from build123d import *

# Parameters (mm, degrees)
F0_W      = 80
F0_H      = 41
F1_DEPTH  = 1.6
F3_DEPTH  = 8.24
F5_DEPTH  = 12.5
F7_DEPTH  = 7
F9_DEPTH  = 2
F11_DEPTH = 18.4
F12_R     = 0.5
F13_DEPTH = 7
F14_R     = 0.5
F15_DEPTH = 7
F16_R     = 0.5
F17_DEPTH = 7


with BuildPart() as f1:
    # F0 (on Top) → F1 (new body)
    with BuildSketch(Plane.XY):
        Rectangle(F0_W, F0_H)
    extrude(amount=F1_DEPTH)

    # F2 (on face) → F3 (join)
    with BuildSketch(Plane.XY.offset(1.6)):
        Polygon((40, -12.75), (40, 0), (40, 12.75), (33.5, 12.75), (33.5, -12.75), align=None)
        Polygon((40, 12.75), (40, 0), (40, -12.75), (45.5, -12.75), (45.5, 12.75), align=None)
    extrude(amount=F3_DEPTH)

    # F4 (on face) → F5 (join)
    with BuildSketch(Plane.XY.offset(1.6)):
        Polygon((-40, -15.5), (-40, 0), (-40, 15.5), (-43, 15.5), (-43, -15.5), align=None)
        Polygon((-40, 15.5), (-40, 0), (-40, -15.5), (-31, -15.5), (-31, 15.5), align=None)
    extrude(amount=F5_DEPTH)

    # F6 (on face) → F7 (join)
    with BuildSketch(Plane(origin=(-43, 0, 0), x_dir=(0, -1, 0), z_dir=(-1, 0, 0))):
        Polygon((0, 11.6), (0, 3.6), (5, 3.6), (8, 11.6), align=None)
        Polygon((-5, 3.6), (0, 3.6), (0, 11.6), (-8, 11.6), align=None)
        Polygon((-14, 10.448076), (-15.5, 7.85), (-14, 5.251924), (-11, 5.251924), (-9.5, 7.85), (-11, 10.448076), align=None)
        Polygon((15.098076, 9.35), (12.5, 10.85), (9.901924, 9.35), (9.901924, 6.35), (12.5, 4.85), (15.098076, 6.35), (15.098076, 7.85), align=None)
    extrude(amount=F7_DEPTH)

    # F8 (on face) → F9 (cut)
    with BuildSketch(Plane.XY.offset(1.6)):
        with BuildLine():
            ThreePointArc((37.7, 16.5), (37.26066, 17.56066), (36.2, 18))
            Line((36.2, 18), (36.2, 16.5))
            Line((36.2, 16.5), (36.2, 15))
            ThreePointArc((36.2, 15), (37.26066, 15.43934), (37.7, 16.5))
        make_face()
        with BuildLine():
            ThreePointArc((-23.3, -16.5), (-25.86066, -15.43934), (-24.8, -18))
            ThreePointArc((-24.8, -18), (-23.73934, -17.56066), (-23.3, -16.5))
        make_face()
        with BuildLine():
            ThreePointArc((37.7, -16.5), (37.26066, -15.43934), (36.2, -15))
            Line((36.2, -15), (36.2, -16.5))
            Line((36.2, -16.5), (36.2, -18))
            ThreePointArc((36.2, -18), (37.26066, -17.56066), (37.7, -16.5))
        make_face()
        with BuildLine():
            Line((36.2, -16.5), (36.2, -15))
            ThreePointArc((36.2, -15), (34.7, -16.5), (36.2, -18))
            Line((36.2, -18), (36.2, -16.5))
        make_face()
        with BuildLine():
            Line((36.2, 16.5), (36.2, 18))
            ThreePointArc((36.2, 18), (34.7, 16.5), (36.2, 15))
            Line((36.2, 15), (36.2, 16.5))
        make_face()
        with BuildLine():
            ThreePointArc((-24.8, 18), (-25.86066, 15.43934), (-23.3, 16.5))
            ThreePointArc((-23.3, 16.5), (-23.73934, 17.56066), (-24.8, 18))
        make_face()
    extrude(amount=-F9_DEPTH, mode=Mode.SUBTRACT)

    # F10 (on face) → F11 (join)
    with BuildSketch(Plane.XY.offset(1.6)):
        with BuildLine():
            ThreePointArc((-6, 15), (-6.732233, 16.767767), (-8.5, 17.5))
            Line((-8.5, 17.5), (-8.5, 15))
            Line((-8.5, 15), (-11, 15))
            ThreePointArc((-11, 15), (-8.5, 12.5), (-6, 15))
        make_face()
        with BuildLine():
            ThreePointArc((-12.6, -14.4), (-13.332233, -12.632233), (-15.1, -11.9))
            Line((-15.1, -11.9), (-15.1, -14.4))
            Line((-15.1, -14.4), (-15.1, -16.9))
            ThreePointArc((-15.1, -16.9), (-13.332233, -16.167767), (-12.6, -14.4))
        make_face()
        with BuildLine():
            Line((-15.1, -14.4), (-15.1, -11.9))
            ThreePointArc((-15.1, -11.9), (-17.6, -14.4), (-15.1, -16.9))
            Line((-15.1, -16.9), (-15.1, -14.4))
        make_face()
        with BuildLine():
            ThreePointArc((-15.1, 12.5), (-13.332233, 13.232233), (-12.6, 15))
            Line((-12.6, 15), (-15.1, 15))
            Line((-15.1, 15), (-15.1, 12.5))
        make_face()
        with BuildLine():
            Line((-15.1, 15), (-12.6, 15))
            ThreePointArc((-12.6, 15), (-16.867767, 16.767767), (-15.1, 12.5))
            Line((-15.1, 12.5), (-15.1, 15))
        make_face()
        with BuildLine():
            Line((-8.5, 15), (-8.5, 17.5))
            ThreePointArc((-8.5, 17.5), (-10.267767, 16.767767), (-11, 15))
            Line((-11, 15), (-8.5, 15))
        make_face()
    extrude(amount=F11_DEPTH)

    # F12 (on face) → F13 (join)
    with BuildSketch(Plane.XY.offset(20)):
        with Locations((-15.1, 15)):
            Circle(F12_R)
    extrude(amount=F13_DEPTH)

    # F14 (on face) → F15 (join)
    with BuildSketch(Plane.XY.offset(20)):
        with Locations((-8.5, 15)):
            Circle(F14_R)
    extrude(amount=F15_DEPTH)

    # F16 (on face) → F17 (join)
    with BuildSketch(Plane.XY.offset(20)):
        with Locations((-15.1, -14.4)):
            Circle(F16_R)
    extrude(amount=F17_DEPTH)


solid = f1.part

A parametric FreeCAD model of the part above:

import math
import FreeCAD as App
import Part
import Sketcher
from FreeCAD import Vector
Q = App.Units.Quantity

doc = App.newDocument("Part")
body = doc.addObject("PartDesign::Body", "Body")

sketch1 = doc.addObject("Sketcher::SketchObject", "Sketch")
body.addObject(sketch1)
sketch1.AttachmentSupport = (doc.XY_Plane, [""])
sketch1.MapMode = "FlatFace"
sketch1.addGeometry([
    Part.LineSegment(Vector(-40, 20, 0), Vector(-40, -20, 0)),
    Part.LineSegment(Vector(-40, -20, 0), Vector(40, -20, 0)),
    Part.LineSegment(Vector(40, -20, 0), Vector(40, 20, 0)),
    Part.LineSegment(Vector(40, 20, 0), Vector(-40, 20, 0)),
], False)
sketch1.addConstraint([
    Sketcher.Constraint("Coincident", 0, 2, 1, 1),
    Sketcher.Constraint("Coincident", 1, 2, 2, 1),
    Sketcher.Constraint("Coincident", 2, 2, 3, 1),
    Sketcher.Constraint("Coincident", 3, 2, 0, 1),
    Sketcher.Constraint("Vertical", 0),
    Sketcher.Constraint("Horizontal", 1),
    Sketcher.Constraint("Vertical", 2),
    Sketcher.Constraint("Horizontal", 3),
    Sketcher.Constraint("Symmetric", 0, 2, 2, 2, -1, 1),
    Sketcher.Constraint("DistanceX", 1, 1, 1, 2, 80.0),
    Sketcher.Constraint("DistanceY", 0, 2, 0, 1, 41.0),
])
pad1 = doc.addObject("PartDesign::Pad", "Pad")
body.addObject(pad1)
pad1.Profile = sketch1
pad1.Length = 1.6

sketch2 = doc.addObject("Sketcher::SketchObject", "Sketch001")
body.addObject(sketch2)
sketch2.AttachmentSupport = (doc.XY_Plane, [""])
sketch2.MapMode = "FlatFace"
sketch2.AttachmentOffset = App.Placement(Vector(0, 0, 1.6), App.Rotation())
sketch2.addGeometry([
    Part.LineSegment(Vector(34, 13, 0), Vector(34, -13, 0)),
    Part.LineSegment(Vector(34, -13, 0), Vector(46, -13, 0)),
    Part.LineSegment(Vector(46, -13, 0), Vector(46, 13, 0)),
    Part.LineSegment(Vector(46, 13, 0), Vector(34, 13, 0)),
], False)
sketch2.addConstraint([
    Sketcher.Constraint("Coincident", 0, 2, 1, 1),
    Sketcher.Constraint("Coincident", 1, 2, 2, 1),
    Sketcher.Constraint("Coincident", 2, 2, 3, 1),
    Sketcher.Constraint("Coincident", 3, 2, 0, 1),
    Sketcher.Constraint("Vertical", 0),
    Sketcher.Constraint("Horizontal", 1),
    Sketcher.Constraint("Vertical", 2),
    Sketcher.Constraint("Horizontal", 3),
    Sketcher.Constraint("DistanceX", 1, 1, 1, 2, 12.0),
    Sketcher.Constraint("DistanceY", 0, 2, 0, 1, 25.5),
    Sketcher.Constraint("DistanceX", -1, 1, 0, 2, 33.5),
    Sketcher.Constraint("DistanceY", 0, 2, -1, 1, 12.75),
])
pad2 = doc.addObject("PartDesign::Pad", "Pad001")
body.addObject(pad2)
pad2.Profile = sketch2
pad2.Length = 8.24

sketch3 = doc.addObject("Sketcher::SketchObject", "Sketch002")
body.addObject(sketch3)
sketch3.AttachmentSupport = (doc.XY_Plane, [""])
sketch3.MapMode = "FlatFace"
sketch3.AttachmentOffset = App.Placement(Vector(0, 0, 1.6), App.Rotation())
sketch3.addGeometry([
    Part.LineSegment(Vector(-43, 16, 0), Vector(-43, -16, 0)),
    Part.LineSegment(Vector(-43, -16, 0), Vector(-31, -16, 0)),
    Part.LineSegment(Vector(-31, -16, 0), Vector(-31, 16, 0)),
    Part.LineSegment(Vector(-31, 16, 0), Vector(-43, 16, 0)),
], False)
sketch3.addConstraint([
    Sketcher.Constraint("Coincident", 0, 2, 1, 1),
    Sketcher.Constraint("Coincident", 1, 2, 2, 1),
    Sketcher.Constraint("Coincident", 2, 2, 3, 1),
    Sketcher.Constraint("Coincident", 3, 2, 0, 1),
    Sketcher.Constraint("Vertical", 0),
    Sketcher.Constraint("Horizontal", 1),
    Sketcher.Constraint("Vertical", 2),
    Sketcher.Constraint("Horizontal", 3),
    Sketcher.Constraint("DistanceX", 1, 1, 1, 2, 12.0),
    Sketcher.Constraint("DistanceY", 0, 2, 0, 1, 31.0),
    Sketcher.Constraint("DistanceX", 0, 2, -1, 1, 43.0),
    Sketcher.Constraint("DistanceY", 0, 2, -1, 1, 15.5),
])
pad3 = doc.addObject("PartDesign::Pad", "Pad002")
body.addObject(pad3)
pad3.Profile = sketch3
pad3.Length = 12.5

sketch4 = doc.addObject("Sketcher::SketchObject", "Sketch003")
body.addObject(sketch4)
sketch4.AttachmentSupport = (doc.YZ_Plane, [""])
sketch4.MapMode = "FlatFace"
sketch4.AttachmentOffset = App.Placement(Vector(0, 0, -43), App.Rotation())
sketch4.addGeometry([
    Part.LineSegment(Vector(-5, 3.6, 0), Vector(-8, 11.6, 0)),
    Part.LineSegment(Vector(-8, 11.6, 0), Vector(8, 11.6, 0)),
    Part.LineSegment(Vector(8, 11.6, 0), Vector(5, 3.6, 0)),
    Part.LineSegment(Vector(5, 3.6, 0), Vector(-5, 3.6, 0)),
    Part.LineSegment(Vector(14, 10.4, 0), Vector(15.5, 7.8, 0)),
    Part.LineSegment(Vector(15.5, 7.8, 0), Vector(14, 5.3, 0)),
    Part.LineSegment(Vector(14, 5.3, 0), Vector(11, 5.3, 0)),
    Part.LineSegment(Vector(11, 5.3, 0), Vector(9.5, 7.8, 0)),
    Part.LineSegment(Vector(9.5, 7.8, 0), Vector(11, 10.4, 0)),
    Part.LineSegment(Vector(11, 10.4, 0), Vector(14, 10.4, 0)),
    Part.LineSegment(Vector(-15.1, 9.3, 0), Vector(-12.5, 10.8, 0)),
    Part.LineSegment(Vector(-12.5, 10.8, 0), Vector(-9.9, 9.3, 0)),
    Part.LineSegment(Vector(-9.9, 9.3, 0), Vector(-9.9, 6.3, 0)),
    Part.LineSegment(Vector(-9.9, 6.3, 0), Vector(-12.5, 4.8, 0)),
    Part.LineSegment(Vector(-12.5, 4.8, 0), Vector(-15.1, 6.3, 0)),
    Part.LineSegment(Vector(-15.1, 6.3, 0), Vector(-15.1, 9.3, 0)),
], False)
sketch4.addConstraint([
    Sketcher.Constraint("Coincident", 0, 2, 1, 1),
    Sketcher.Constraint("Coincident", 1, 2, 2, 1),
    Sketcher.Constraint("Coincident", 2, 2, 3, 1),
    Sketcher.Constraint("Coincident", 3, 2, 0, 1),
    Sketcher.Constraint("Coincident", 4, 2, 5, 1),
    Sketcher.Constraint("Coincident", 5, 2, 6, 1),
    Sketcher.Constraint("Coincident", 6, 2, 7, 1),
    Sketcher.Constraint("Coincident", 7, 2, 8, 1),
    Sketcher.Constraint("Coincident", 8, 2, 9, 1),
    Sketcher.Constraint("Coincident", 9, 2, 4, 1),
    Sketcher.Constraint("Coincident", 10, 2, 11, 1),
    Sketcher.Constraint("Coincident", 11, 2, 12, 1),
    Sketcher.Constraint("Coincident", 12, 2, 13, 1),
    Sketcher.Constraint("Coincident", 13, 2, 14, 1),
    Sketcher.Constraint("Coincident", 14, 2, 15, 1),
    Sketcher.Constraint("Coincident", 15, 2, 10, 1),
    Sketcher.Constraint("Horizontal", 1),
    Sketcher.Constraint("Horizontal", 3),
    Sketcher.Constraint("Horizontal", 6),
    Sketcher.Constraint("Horizontal", 9),
    Sketcher.Constraint("Vertical", 12),
    Sketcher.Constraint("Vertical", 15),
    Sketcher.Constraint("Parallel", 4, 7),
    Sketcher.Constraint("Parallel", 5, 8),
    Sketcher.Constraint("Perpendicular", 7, 10),
    Sketcher.Constraint("Perpendicular", 8, 11),
    Sketcher.Constraint("Parallel", 10, 13),
    Sketcher.Constraint("Parallel", 11, 14),
    Sketcher.Constraint("Horizontal", 4, 2, 7, 2),
    Sketcher.Constraint("Horizontal", 12, 2, 14, 2),
    Sketcher.Constraint("Horizontal", 11, 2, 15, 2),
    Sketcher.Constraint("Vertical", 6, 2, 8, 2),
    Sketcher.Constraint("Vertical", 5, 2, 9, 2),
    Sketcher.Constraint("Equal", 9, 12),
    Sketcher.Constraint("Equal", 0, 2),
    Sketcher.Constraint("Equal", 8, 10),
    Sketcher.Constraint("DistanceX", 1, 1, 1, 2, 16.0),
    Sketcher.Constraint("DistanceX", 3, 2, 3, 1, 10.0),
    Sketcher.Constraint("DistanceX", 6, 2, 6, 1, 3.0),
    Sketcher.Constraint("Angle", 4, Q("-59.999998 deg")),
    Sketcher.Constraint("Distance", 4, 3.0),
    Sketcher.Constraint("DistanceX", 0, 2, -1, 1, 8.0),
    Sketcher.Constraint("DistanceX", -1, 1, 5, 2, 14.0),
    Sketcher.Constraint("DistanceY", 2, 2, 1, 2, 8.0),
    Sketcher.Constraint("DistanceX", 10, 2, 7, 2, 22.0),
    Sketcher.Constraint("DistanceY", 7, 2, 10, 2, 3.0),
    Sketcher.Constraint("DistanceY", -1, 1, 0, 2, 11.6),
    Sketcher.Constraint("DistanceY", -1, 1, 4, 2, 7.85),
])
pad4 = doc.addObject("PartDesign::Pad", "Pad003")
body.addObject(pad4)
pad4.Profile = sketch4
pad4.Length = 7
pad4.Reversed = True

sketch5 = doc.addObject("Sketcher::SketchObject", "Sketch004")
body.addObject(sketch5)
sketch5.AttachmentSupport = (doc.XY_Plane, [""])
sketch5.MapMode = "FlatFace"
sketch5.AttachmentOffset = App.Placement(Vector(0, 0, 1.6), App.Rotation())
sketch5.addGeometry([
    Part.ArcOfCircle(Part.Circle(Vector(36.2, 16.5, 0), Vector(0, 0, 1), 1.5), math.radians(0), math.radians(90)),
    Part.ArcOfCircle(Part.Circle(Vector(36.2, 16.5, 0), Vector(0, 0, 1), 1.5), math.radians(90), math.radians(270)),
    Part.ArcOfCircle(Part.Circle(Vector(36.2, 16.5, 0), Vector(0, 0, 1), 1.5), math.radians(-90), math.radians(0)),
    Part.ArcOfCircle(Part.Circle(Vector(-24.8, -16.5, 0), Vector(0, 0, 1), 1.5), math.radians(0), math.radians(270)),
    Part.ArcOfCircle(Part.Circle(Vector(-24.8, -16.5, 0), Vector(0, 0, 1), 1.5), math.radians(-90), math.radians(0)),
    Part.ArcOfCircle(Part.Circle(Vector(36.2, -16.5, 0), Vector(0, 0, 1), 1.5), math.radians(0), math.radians(90)),
    Part.ArcOfCircle(Part.Circle(Vector(36.2, -16.5, 0), Vector(0, 0, 1), 1.5), math.radians(90), math.radians(270)),
    Part.ArcOfCircle(Part.Circle(Vector(36.2, -16.5, 0), Vector(0, 0, 1), 1.5), math.radians(-90), math.radians(0)),
    Part.ArcOfCircle(Part.Circle(Vector(-24.8, 16.5, 0), Vector(0, 0, 1), 1.5), math.radians(90), math.radians(360)),
    Part.ArcOfCircle(Part.Circle(Vector(-24.8, 16.5, 0), Vector(0, 0, 1), 1.5), math.radians(0), math.radians(90)),
], False)
sketch5.addConstraint([
    Sketcher.Constraint("Tangent", 0, 2, 1, 1),
    Sketcher.Constraint("Tangent", 1, 2, 2, 1),
    Sketcher.Constraint("Tangent", 2, 2, 0, 1),
    Sketcher.Constraint("Tangent", 3, 1, 4, 2),
    Sketcher.Constraint("Coincident", 4, 1, 3, 2),
    Sketcher.Constraint("Tangent", 5, 2, 6, 1),
    Sketcher.Constraint("Tangent", 6, 2, 7, 1),
    Sketcher.Constraint("Tangent", 7, 2, 5, 1),
    Sketcher.Constraint("Tangent", 8, 1, 9, 2),
    Sketcher.Constraint("Coincident", 9, 1, 8, 2),
    Sketcher.Constraint("Equal", 2, 3),
    Sketcher.Constraint("Equal", 4, 5),
    Sketcher.Constraint("Equal", 7, 8),
    Sketcher.Constraint("Symmetric", 0, 3, 5, 3, -1),
    Sketcher.Constraint("Symmetric", 3, 3, 8, 3, -1),
    Sketcher.Constraint("Horizontal", 4, 3, 5, 3),
    Sketcher.Constraint("Horizontal", 9, 3, 2, 2),
    Sketcher.Constraint("Horizontal", 7, 3, 3, 1),
    Sketcher.Constraint("Horizontal", 3, 1, 7, 2),
    Sketcher.Constraint("Horizontal", 2, 2, 9, 1),
    Sketcher.Constraint("Vertical", 7, 3, 0, 2),
    Sketcher.Constraint("Vertical", 0, 2, 1, 2),
    Sketcher.Constraint("Vertical", 9, 3, 4, 1),
    Sketcher.Constraint("Vertical", 1, 2, 5, 2),
    Sketcher.Constraint("Vertical", 5, 2, 6, 2),
    Sketcher.Constraint("Vertical", 4, 1, 8, 1),
    Sketcher.Constraint("Radius", 0, 1.500001),
    Sketcher.Constraint("DistanceY", -1, 1, 0, 2, 18.0),
    Sketcher.Constraint("DistanceX", 3, 3, 0, 3, 60.999999),
    Sketcher.Constraint("DistanceX", -1, 1, 0, 3, 36.199999),
])
pocket1 = doc.addObject("PartDesign::Pocket", "Pocket")
body.addObject(pocket1)
pocket1.Profile = sketch5
pocket1.Length = 2

sketch6 = doc.addObject("Sketcher::SketchObject", "Sketch005")
body.addObject(sketch6)
sketch6.AttachmentSupport = (doc.XY_Plane, [""])
sketch6.MapMode = "FlatFace"
sketch6.AttachmentOffset = App.Placement(Vector(0, 0, 1.6), App.Rotation())
sketch6.addGeometry([
    Part.ArcOfCircle(Part.Circle(Vector(-8.5, 15, 0), Vector(0, 0, 1), 2.5), math.radians(0), math.radians(90)),
    Part.ArcOfCircle(Part.Circle(Vector(-8.5, 15, 0), Vector(0, 0, 1), 2.5), math.radians(90), math.radians(180)),
    Part.ArcOfCircle(Part.Circle(Vector(-8.5, 15, 0), Vector(0, 0, 1), 2.5), math.radians(180), math.radians(360)),
    Part.ArcOfCircle(Part.Circle(Vector(-15.1, -14.4, 0), Vector(0, 0, 1), 2.5), math.radians(0), math.radians(90)),
    Part.ArcOfCircle(Part.Circle(Vector(-15.1, -14.4, 0), Vector(0, 0, 1), 2.5), math.radians(90), math.radians(270)),
    Part.ArcOfCircle(Part.Circle(Vector(-15.1, -14.4, 0), Vector(0, 0, 1), 2.5), math.radians(-90), math.radians(0)),
    Part.ArcOfCircle(Part.Circle(Vector(-15.1, 15, 0), Vector(0, 0, 1), 2.5), math.radians(-90), math.radians(0)),
    Part.ArcOfCircle(Part.Circle(Vector(-15.1, 15, 0), Vector(0, 0, 1), 2.5), math.radians(0), math.radians(270)),
], False)
sketch6.addConstraint([
    Sketcher.Constraint("Tangent", 0, 2, 1, 1),
    Sketcher.Constraint("Tangent", 1, 2, 2, 1),
    Sketcher.Constraint("Tangent", 2, 2, 0, 1),
    Sketcher.Constraint("Tangent", 3, 2, 4, 1),
    Sketcher.Constraint("Tangent", 4, 2, 5, 1),
    Sketcher.Constraint("Tangent", 5, 2, 3, 1),
    Sketcher.Constraint("Tangent", 6, 1, 7, 2),
    Sketcher.Constraint("Coincident", 7, 1, 6, 2),
    Sketcher.Constraint("Equal", 2, 3),
    Sketcher.Constraint("Equal", 5, 6),
    Sketcher.Constraint("Horizontal", 2, 3, 6, 3),
    Sketcher.Constraint("Horizontal", 7, 3, 1, 2),
    Sketcher.Constraint("Horizontal", 1, 2, 2, 2),
    Sketcher.Constraint("Horizontal", 4, 3, 5, 2),
    Sketcher.Constraint("Horizontal", 2, 2, 7, 1),
    Sketcher.Constraint("Vertical", 5, 3, 6, 3),
    Sketcher.Constraint("Vertical", 2, 3, 0, 2),
    Sketcher.Constraint("Vertical", 7, 3, 3, 2),
    Sketcher.Constraint("Vertical", 3, 2, 4, 2),
    Sketcher.Constraint("Vertical", 4, 2, 6, 1),
    Sketcher.Constraint("Radius", 0, 2.5),
    Sketcher.Constraint("DistanceY", -1, 1, 0, 3, 15.0),
    Sketcher.Constraint("DistanceX", 1, 2, -1, 1, 11.0),
    Sketcher.Constraint("DistanceX", 3, 3, -1, 1, 15.1),
    Sketcher.Constraint("DistanceY", 3, 3, -1, 1, 14.4),
])
pad5 = doc.addObject("PartDesign::Pad", "Pad004")
body.addObject(pad5)
pad5.Profile = sketch6
pad5.Length = 18.4

sketch7 = doc.addObject("Sketcher::SketchObject", "Sketch006")
body.addObject(sketch7)
sketch7.AttachmentSupport = (doc.XY_Plane, [""])
sketch7.MapMode = "FlatFace"
sketch7.AttachmentOffset = App.Placement(Vector(0, 0, 20), App.Rotation())
sketch7.addGeometry(Part.Circle(Vector(-15.1, 15, 0), Vector(0, 0, 1), 0.5), False)
sketch7.addConstraint([
    Sketcher.Constraint("Diameter", 0, 1.0),
    Sketcher.Constraint("DistanceY", -1, 1, 0, 3, 15.0),
    Sketcher.Constraint("DistanceX", 0, 3, -1, 1, 15.1),
])
pad6 = doc.addObject("PartDesign::Pad", "Pad005")
body.addObject(pad6)
pad6.Profile = sketch7
pad6.Length = 7

sketch8 = doc.addObject("Sketcher::SketchObject", "Sketch007")
body.addObject(sketch8)
sketch8.AttachmentSupport = (doc.XY_Plane, [""])
sketch8.MapMode = "FlatFace"
sketch8.AttachmentOffset = App.Placement(Vector(0, 0, 20), App.Rotation())
sketch8.addGeometry(Part.Circle(Vector(-8.5, 15, 0), Vector(0, 0, 1), 0.5), False)
sketch8.addConstraint([
    Sketcher.Constraint("Diameter", 0, 1.0),
    Sketcher.Constraint("DistanceY", -1, 1, 0, 3, 15.0),
    Sketcher.Constraint("DistanceX", 0, 3, -1, 1, 8.5),
])
pad7 = doc.addObject("PartDesign::Pad", "Pad006")
body.addObject(pad7)
pad7.Profile = sketch8
pad7.Length = 7

sketch9 = doc.addObject("Sketcher::SketchObject", "Sketch008")
body.addObject(sketch9)
sketch9.AttachmentSupport = (doc.XY_Plane, [""])
sketch9.MapMode = "FlatFace"
sketch9.AttachmentOffset = App.Placement(Vector(0, 0, 20), App.Rotation())
sketch9.addGeometry(Part.Circle(Vector(-15.1, -14.4, 0), Vector(0, 0, 1), 0.5), False)
sketch9.addConstraint([
    Sketcher.Constraint("Diameter", 0, 1.0),
    Sketcher.Constraint("DistanceX", 0, 3, -1, 1, 15.1),
    Sketcher.Constraint("DistanceY", 0, 3, -1, 1, 14.4),
])
pad8 = doc.addObject("PartDesign::Pad", "Pad007")
body.addObject(pad8)
pad8.Profile = sketch9
pad8.Length = 7

doc.recompute()
